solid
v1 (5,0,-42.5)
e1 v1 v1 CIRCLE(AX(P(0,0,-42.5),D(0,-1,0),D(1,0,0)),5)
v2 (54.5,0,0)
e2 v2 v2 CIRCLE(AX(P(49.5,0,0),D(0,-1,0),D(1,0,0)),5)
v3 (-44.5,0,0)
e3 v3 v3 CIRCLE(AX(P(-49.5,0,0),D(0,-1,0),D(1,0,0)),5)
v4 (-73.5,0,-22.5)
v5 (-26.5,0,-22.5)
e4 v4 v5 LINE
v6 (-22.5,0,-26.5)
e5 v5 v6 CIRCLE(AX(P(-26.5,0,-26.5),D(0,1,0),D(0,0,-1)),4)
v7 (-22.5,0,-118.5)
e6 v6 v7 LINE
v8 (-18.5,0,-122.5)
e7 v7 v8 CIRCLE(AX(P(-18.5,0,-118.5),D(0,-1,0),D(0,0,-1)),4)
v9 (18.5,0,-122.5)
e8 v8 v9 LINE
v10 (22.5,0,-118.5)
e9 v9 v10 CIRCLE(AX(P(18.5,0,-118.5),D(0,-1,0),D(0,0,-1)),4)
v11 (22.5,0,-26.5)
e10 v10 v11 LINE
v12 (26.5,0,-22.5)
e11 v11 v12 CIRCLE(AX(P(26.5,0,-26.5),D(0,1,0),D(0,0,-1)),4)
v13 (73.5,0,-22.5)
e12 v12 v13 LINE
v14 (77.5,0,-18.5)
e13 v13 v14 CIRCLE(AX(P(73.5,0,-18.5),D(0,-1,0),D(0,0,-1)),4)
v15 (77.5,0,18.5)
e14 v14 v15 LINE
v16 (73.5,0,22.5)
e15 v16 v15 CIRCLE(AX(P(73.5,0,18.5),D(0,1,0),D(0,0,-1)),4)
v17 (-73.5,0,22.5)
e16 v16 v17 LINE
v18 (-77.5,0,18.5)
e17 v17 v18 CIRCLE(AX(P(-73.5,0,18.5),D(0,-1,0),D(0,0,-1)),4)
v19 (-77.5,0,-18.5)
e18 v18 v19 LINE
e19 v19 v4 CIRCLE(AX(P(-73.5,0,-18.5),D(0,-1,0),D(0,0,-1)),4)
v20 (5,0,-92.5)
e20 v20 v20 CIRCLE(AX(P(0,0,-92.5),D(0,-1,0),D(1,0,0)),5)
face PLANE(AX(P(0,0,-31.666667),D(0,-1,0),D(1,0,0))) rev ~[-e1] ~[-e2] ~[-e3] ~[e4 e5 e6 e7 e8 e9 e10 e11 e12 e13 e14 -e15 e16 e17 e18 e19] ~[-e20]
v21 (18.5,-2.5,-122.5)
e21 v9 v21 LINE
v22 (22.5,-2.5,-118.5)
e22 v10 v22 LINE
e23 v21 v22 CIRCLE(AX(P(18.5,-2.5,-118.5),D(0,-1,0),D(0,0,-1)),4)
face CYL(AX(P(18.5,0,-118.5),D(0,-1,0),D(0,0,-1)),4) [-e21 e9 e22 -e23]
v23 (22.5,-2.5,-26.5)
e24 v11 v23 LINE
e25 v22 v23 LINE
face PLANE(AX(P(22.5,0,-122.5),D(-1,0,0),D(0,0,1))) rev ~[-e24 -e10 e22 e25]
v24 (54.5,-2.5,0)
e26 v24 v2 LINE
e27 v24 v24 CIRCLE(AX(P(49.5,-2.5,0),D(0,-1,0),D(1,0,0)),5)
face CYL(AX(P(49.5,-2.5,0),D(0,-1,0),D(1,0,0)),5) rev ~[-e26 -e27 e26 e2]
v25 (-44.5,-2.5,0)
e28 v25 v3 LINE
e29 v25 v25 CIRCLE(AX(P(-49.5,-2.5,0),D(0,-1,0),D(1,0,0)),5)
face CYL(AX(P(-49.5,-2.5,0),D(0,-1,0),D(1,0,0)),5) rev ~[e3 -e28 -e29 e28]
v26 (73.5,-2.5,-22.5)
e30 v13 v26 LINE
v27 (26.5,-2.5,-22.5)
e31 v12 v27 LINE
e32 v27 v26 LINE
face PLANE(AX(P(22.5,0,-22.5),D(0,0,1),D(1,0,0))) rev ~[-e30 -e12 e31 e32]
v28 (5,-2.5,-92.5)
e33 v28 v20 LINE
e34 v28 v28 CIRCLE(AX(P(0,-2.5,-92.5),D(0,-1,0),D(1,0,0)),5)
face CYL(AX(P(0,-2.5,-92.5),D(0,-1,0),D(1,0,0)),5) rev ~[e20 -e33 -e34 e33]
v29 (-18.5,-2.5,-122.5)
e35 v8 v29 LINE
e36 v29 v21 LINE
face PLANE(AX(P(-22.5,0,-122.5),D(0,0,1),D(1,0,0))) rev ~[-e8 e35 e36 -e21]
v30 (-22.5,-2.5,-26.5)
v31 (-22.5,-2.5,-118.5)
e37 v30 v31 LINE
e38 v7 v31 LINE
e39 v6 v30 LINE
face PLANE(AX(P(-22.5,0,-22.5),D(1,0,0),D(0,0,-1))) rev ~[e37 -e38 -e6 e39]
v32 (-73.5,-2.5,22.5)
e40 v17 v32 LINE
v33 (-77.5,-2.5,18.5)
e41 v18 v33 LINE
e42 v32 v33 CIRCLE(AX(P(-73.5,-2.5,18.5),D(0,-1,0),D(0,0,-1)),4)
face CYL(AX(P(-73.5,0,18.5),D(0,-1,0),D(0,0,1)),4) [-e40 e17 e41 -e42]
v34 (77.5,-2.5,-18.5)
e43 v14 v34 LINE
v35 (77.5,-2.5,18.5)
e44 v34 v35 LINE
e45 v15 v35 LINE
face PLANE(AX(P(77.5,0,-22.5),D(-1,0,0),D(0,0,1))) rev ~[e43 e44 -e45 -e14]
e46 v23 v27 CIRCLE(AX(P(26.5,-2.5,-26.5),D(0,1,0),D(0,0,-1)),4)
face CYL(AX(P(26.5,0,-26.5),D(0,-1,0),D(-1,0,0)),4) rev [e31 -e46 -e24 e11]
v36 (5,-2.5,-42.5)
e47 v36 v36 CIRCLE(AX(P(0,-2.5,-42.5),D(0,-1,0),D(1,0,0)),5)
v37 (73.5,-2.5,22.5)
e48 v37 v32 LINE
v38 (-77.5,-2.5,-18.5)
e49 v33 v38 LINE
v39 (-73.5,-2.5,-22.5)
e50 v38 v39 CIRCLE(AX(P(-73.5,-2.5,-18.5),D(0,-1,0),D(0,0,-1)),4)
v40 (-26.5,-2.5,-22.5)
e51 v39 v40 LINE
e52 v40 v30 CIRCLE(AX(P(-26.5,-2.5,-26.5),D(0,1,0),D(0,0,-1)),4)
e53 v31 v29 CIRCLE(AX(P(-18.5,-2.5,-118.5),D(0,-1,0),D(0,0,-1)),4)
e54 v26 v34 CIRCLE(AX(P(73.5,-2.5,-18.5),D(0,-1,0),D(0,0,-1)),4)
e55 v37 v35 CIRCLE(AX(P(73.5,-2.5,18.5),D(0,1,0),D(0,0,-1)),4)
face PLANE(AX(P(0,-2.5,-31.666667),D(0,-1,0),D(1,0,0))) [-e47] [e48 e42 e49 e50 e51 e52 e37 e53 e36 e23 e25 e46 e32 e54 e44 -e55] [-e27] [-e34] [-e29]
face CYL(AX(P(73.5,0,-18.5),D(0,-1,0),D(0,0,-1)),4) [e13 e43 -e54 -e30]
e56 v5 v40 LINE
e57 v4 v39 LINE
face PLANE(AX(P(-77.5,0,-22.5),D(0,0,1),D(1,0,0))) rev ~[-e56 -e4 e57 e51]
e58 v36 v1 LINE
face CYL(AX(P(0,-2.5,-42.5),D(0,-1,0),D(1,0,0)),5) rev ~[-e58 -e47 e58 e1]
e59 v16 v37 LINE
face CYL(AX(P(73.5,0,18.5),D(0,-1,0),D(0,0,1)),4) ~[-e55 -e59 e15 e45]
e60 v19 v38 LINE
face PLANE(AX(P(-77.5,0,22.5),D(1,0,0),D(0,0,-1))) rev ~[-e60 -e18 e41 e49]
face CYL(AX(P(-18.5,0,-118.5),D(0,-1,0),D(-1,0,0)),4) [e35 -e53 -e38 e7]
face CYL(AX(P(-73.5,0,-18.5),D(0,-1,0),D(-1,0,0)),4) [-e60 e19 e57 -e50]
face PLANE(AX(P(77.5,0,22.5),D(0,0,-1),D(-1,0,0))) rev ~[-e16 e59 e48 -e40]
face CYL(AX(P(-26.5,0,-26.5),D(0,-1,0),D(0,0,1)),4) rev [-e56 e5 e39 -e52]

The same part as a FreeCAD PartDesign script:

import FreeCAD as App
import Part
import Sketcher
from FreeCAD import Vector
Q = App.Units.Quantity


def edges_at(feature, points):
    """Names of the edges that pass closest to the given points."""
    edges = feature.Shape.Edges
    near = lambda p: min(range(len(edges)), key=lambda i: edges[i].distToShape(Part.Vertex(*p))[0])
    return sorted({f"Edge{near(p) + 1}" for p in points})

doc = App.newDocument("Part")
body = doc.addObject("PartDesign::Body", "Body")

# Sketch on XZ plane
sketch1 = body.newObject("Sketcher::SketchObject", "Sketch")
sketch1.AttachmentSupport = (doc.getObject("XZ_Plane"), [""])
sketch1.MapMode = "FlatFace"
sketch1.addGeometry([
    Part.LineSegment(Vector(77.5, 22.5, 0), Vector(-77.5, 22.5, 0)),  # 0
    Part.LineSegment(Vector(-77.5, 22.5, 0), Vector(-77.5, -22.5, 0)),  # 1
    Part.LineSegment(Vector(-77.5, -22.5, 0), Vector(-22.5, -22.5, 0)),  # 2
    Part.LineSegment(Vector(-22.5, -22.5, 0), Vector(-22.5, -122.5, 0)),  # 3
    Part.LineSegment(Vector(-22.5, -122.5, 0), Vector(22.5, -122.5, 0)),  # 4
    Part.LineSegment(Vector(22.5, -122.5, 0), Vector(22.5, -22.5, 0)),  # 5
    Part.LineSegment(Vector(22.5, -22.5, 0), Vector(77.5, -22.5, 0)),  # 6
    Part.LineSegment(Vector(77.5, -22.5, 0), Vector(77.5, 22.5, 0)),  # 7
], False)
sketch1.addConstraint([
    Sketcher.Constraint("Coincident", 0, 2, 1, 1),
    Sketcher.Constraint("Coincident", 1, 2, 2, 1),
    Sketcher.Constraint("Coincident", 2, 2, 3, 1),
    Sketcher.Constraint("Coincident", 3, 2, 4, 1),
    Sketcher.Constraint("Coincident", 4, 2, 5, 1),
    Sketcher.Constraint("Coincident", 5, 2, 6, 1),
    Sketcher.Constraint("Coincident", 6, 2, 7, 1),
    Sketcher.Constraint("Coincident", 7, 2, 0, 1),
    Sketcher.Constraint("Horizontal", 0),
    Sketcher.Constraint("Vertical", 1),
    Sketcher.Constraint("Horizontal", 2),
    Sketcher.Constraint("Vertical", 3),
    Sketcher.Constraint("Horizontal", 4),
    Sketcher.Constraint("Vertical", 5),
    Sketcher.Constraint("Horizontal", 6),
    Sketcher.Constraint("Vertical", 7),
    Sketcher.Constraint("Symmetric", 0, 2, 6, 2, -1, 1),
    Sketcher.Constraint("Symmetric", 2, 2, 5, 2, -2),
    Sketcher.Constraint("Equal", 4, 1),
    Sketcher.Constraint("DistanceX", 0, 2, 0, 1, Q("155 mm")),
    Sketcher.Constraint("DistanceX", 2, 1, 2, 2, Q("55 mm")),
    Sketcher.Constraint("DistanceY", 3, 2, 3, 1, Q("100 mm")),
])
pad1 = body.newObject("PartDesign::Pad", "Pad")
pad1.Profile = sketch1
pad1.Length = 2.5
doc.recompute()

fillet = body.newObject("PartDesign::Fillet", "Fillet")
fillet.Base = (pad1, edges_at(pad1, [
    (-77.5, -1.25, 22.5),
    (-77.5, -1.25, -22.5),
    (77.5, -1.25, 22.5),
    (77.5, -1.25, -22.5),
    (22.5, -1.25, -122.5),
    (-22.5, -1.25, -122.5),
    (22.5, -1.25, -22.5),
    (-22.5, -1.25, -22.5),
]))
fillet.Radius = 4

# Sketch on XZ plane
sketch2 = body.newObject("Sketcher::SketchObject", "Sketch001")
sketch2.AttachmentSupport = (doc.getObject("XZ_Plane"), [""])
sketch2.MapMode = "FlatFace"
sketch2.AttachmentOffset = App.Placement(Vector(0, 0, 2.5), App.Rotation())
sketch2.addGeometry([
    Part.Circle(Vector(49.5, 0, 0), Vector(0, 0, 1), 5),
    Part.Circle(Vector(-49.5, 0, 0), Vector(0, 0, 1), 5),
    Part.Circle(Vector(0, -92.5, 0), Vector(0, 0, 1), 5),
], False)
sketch2.addConstraint([
    Sketcher.Constraint("Equal", 0, 1),
    Sketcher.Constraint("Equal", 1, 2),
    Sketcher.Constraint("Symmetric", 0, 3, 1, 3, -1, 1),
    Sketcher.Constraint("PointOnObject", 0, 3, -1),
    Sketcher.Constraint("PointOnObject", 2, 3, -2),
    Sketcher.Constraint("Diameter", 0, Q("10 mm")),
    Sketcher.Constraint("DistanceX", 1, 3, 0, 3, Q("99 mm")),
    Sketcher.Constraint("DistanceY", 2, 3, -1, 1, Q("92.5 mm")),
])
pocket1 = body.newObject("PartDesign::Pocket", "Pocket")
pocket1.Profile = sketch2
pocket1.Type = "ThroughAll"

# Sketch on XZ plane
sketch3 = body.newObject("Sketcher::SketchObject", "Sketch002")
sketch3.AttachmentSupport = (doc.getObject("XZ_Plane"), [""])
sketch3.MapMode = "FlatFace"
sketch3.AttachmentOffset = App.Placement(Vector(0, 0, 2.5), App.Rotation())
sketch3.addGeometry(Part.Circle(Vector(0, -42.5, 0), Vector(0, 0, 1), 5), False)
sketch3.addConstraint([
    Sketcher.Constraint("PointOnObject", 0, 3, -2),
    Sketcher.Constraint("Diameter", 0, Q("10 mm")),
    Sketcher.Constraint("DistanceY", 0, 3, -1, 1, Q("42.5 mm")),
])
pocket2 = body.newObject("PartDesign::Pocket", "Pocket001")
pocket2.Profile = sketch3
pocket2.Type = "ThroughAll"

doc.recompute()
